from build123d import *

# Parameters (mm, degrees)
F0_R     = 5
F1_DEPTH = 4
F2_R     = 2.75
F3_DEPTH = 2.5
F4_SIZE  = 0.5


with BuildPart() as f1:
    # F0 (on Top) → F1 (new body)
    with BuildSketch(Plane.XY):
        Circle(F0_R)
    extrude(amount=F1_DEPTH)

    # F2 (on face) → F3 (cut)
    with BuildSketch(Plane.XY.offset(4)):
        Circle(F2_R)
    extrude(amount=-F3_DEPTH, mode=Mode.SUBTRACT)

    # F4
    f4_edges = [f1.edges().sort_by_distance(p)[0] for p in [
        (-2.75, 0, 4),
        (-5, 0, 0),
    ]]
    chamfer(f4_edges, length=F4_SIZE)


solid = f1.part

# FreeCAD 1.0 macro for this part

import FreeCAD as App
import Part
import Sketcher


def edges_at(feature, points):
    """Names of the edges that pass closest to the given points."""
    edges = feature.Shape.Edges
    near = lambda p: min(range(len(edges)), key=lambda i: edges[i].distToShape(Part.Vertex(*p))[0])
    return sorted({f"Edge{near(p) + 1}" for p in points})

doc = App.newDocument("Part")
body = doc.addObject("PartDesign::Body", "Body")

# Sketch on XY plane
sketch1 = body.newObject("Sketcher::SketchObject", "Sketch")
sketch1.AttachmentSupport = (doc.getObject("XY_Plane"), [""])
sketch1.MapMode = "FlatFace"
sketch1.addGeometry(Part.Circle(App.Vector(0, 0, 0), App.Vector(0, 0, 1), 5), False)
sketch1.addConstraint([
    Sketcher.Constraint("Coincident", 0, 3, -1, 1),
    Sketcher.Constraint("Diameter", 0, 10.0),
])
pad1 = body.newObject("PartDesign::Pad", "Pad")
pad1.Profile = sketch1
pad1.Length = 4

# Sketch on XY plane
sketch2 = body.newObject("Sketcher::SketchObject", "Sketch001")
sketch2.AttachmentSupport = (doc.getObject("XY_Plane"), [""])
sketch2.MapMode = "FlatFace"
sketch2.AttachmentOffset = App.Placement(App.Vector(0, 0, 4), App.Rotation())
sketch2.addGeometry(Part.Circle(App.Vector(0, 0, 0), App.Vector(0, 0, 1), 2.75), False)
sketch2.addConstraint([
    Sketcher.Constraint("Coincident", 0, 3, -1, 1),
    Sketcher.Constraint("Diameter", 0, 5.5),
])
pocket1 = body.newObject("PartDesign::Pocket", "Pocket")
pocket1.Profile = sketch2
pocket1.Length = 2.5
doc.recompute()

chamfer = body.newObject("PartDesign::Chamfer", "Chamfer")
chamfer.Base = (pocket1, edges_at(pocket1, [(-2.75, 0, 4), (-5, 0, 0)]))
chamfer.Size = 0.5

doc.recompute()
